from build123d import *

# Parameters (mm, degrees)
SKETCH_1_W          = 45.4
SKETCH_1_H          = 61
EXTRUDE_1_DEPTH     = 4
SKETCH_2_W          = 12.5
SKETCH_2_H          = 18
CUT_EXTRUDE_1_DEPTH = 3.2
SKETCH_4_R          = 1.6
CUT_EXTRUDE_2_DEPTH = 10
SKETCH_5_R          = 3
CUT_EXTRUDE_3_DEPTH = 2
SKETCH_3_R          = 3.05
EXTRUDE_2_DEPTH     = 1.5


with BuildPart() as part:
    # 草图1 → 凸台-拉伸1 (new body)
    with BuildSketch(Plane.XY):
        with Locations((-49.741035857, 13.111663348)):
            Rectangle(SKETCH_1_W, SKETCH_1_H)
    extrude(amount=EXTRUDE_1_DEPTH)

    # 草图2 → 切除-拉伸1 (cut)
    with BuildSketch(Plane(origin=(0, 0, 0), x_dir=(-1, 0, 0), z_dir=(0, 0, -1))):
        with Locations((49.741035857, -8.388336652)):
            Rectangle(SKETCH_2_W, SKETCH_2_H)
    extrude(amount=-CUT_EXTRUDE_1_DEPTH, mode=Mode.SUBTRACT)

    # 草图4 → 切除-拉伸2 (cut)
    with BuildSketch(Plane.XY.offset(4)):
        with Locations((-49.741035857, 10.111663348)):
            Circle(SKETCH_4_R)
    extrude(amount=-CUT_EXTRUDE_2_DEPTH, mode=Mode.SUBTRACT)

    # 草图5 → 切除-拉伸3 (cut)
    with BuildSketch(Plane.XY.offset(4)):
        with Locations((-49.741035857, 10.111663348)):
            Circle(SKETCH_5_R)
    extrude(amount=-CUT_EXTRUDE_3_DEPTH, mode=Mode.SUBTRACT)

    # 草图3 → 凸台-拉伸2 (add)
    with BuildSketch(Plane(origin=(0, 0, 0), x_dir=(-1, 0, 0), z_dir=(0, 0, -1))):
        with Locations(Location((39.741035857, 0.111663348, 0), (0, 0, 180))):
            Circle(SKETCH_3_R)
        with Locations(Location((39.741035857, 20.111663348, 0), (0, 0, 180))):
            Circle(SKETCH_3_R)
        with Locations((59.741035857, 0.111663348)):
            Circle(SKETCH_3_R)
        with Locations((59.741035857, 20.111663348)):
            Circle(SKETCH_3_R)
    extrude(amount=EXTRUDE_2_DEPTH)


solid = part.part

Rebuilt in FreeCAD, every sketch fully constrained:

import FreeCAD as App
import Part
import Sketcher

V = App.Vector


def add_polygon(sketch, points):
    """Adds a closed chain of lines whose ends are joined by coincident constraints."""
    first, n = sketch.GeometryCount, len(points)
    for a, b in zip(points, points[1:] + points[:1]):
        sketch.addGeometry(Part.LineSegment(App.Vector(*a, 0), App.Vector(*b, 0)), False)
    for i in range(n):
        sketch.addConstraint(Sketcher.Constraint("Coincident", first + i, 2, first + (i + 1) % n, 1))

doc = App.newDocument("Part")
body = doc.addObject("PartDesign::Body", "Body")

# Sketch on XY plane
sketch1 = body.newObject("Sketcher::SketchObject", "Sketch")
sketch1.AttachmentSupport = (doc.getObject("XY_Plane"), [""])
sketch1.MapMode = "FlatFace"
add_polygon(sketch1, [(-72, 44), (-72, -17), (-27, -17), (-27, 44)])  # lines 0-3
sketch1.addConstraint(Sketcher.Constraint("Vertical", 0))
sketch1.addConstraint(Sketcher.Constraint("Horizontal", 1))
sketch1.addConstraint(Sketcher.Constraint("Vertical", 2))
sketch1.addConstraint(Sketcher.Constraint("Horizontal", 3))
sketch1.addConstraint(Sketcher.Constraint("DistanceY", 0, 2, 0, 1, 61.0))
sketch1.addConstraint(Sketcher.Constraint("DistanceX", 1, 1, 1, 2, 45.4))
sketch1.addConstraint(Sketcher.Constraint("DistanceX", 0, 2, -1, 1, 72.441036))
sketch1.addConstraint(Sketcher.Constraint("DistanceY", 0, 2, -1, 1, 17.388337))
pad1 = body.newObject("PartDesign::Pad", "Pad")
pad1.Profile = sketch1
pad1.Length = 4

# Sketch on XY plane
sketch2 = body.newObject("Sketcher::SketchObject", "Sketch001")
sketch2.AttachmentSupport = (doc.getObject("XY_Plane"), [""])
sketch2.MapMode = "FlatFace"
add_polygon(sketch2, [(-43, 1), (-43, -17), (-56, -17), (-56, 1)])  # lines 0-3
sketch2.addConstraint(Sketcher.Constraint("Vertical", 0))
sketch2.addConstraint(Sketcher.Constraint("Horizontal", 1))
sketch2.addConstraint(Sketcher.Constraint("Vertical", 2))
sketch2.addConstraint(Sketcher.Constraint("Horizontal", 3))
sketch2.addConstraint(Sketcher.Constraint("DistanceY", 0, 2, 0, 1, 18.0))
sketch2.addConstraint(Sketcher.Constraint("DistanceX", 1, 2, 1, 1, 12.5))
sketch2.addConstraint(Sketcher.Constraint("DistanceX", 0, 2, -1, 1, 43.491036))
sketch2.addConstraint(Sketcher.Constraint("DistanceY", 0, 2, -1, 1, 17.388337))
pocket1 = body.newObject("PartDesign::Pocket", "Pocket")
pocket1.Profile = sketch2
pocket1.Length = 3.2
pocket1.Reversed = True

# Sketch on XY plane
sketch3 = body.newObject("Sketcher::SketchObject", "Sketch002")
sketch3.AttachmentSupport = (doc.getObject("XY_Plane"), [""])
sketch3.MapMode = "FlatFace"
sketch3.AttachmentOffset = App.Placement(V(0, 0, 4), App.Rotation())
sketch3.addGeometry(Part.Circle(V(-49.7, 10.1, 0), V(0, 0, 1), 1.6), False)
sketch3.addConstraint(Sketcher.Constraint("Diameter", 0, 3.2))
sketch3.addConstraint(Sketcher.Constraint("DistanceX", 0, 3, -1, 1, 49.741036))
sketch3.addConstraint(Sketcher.Constraint("DistanceY", -1, 1, 0, 3, 10.111663))
pocket2 = body.newObject("PartDesign::Pocket", "Pocket001")
pocket2.Profile = sketch3
pocket2.Length = 10

# Sketch on XY plane
sketch4 = body.newObject("Sketcher::SketchObject", "Sketch003")
sketch4.AttachmentSupport = (doc.getObject("XY_Plane"), [""])
sketch4.MapMode = "FlatFace"
sketch4.AttachmentOffset = App.Placement(V(0, 0, 4), App.Rotation())
sketch4.addGeometry(Part.Circle(V(-49.7, 10.1, 0), V(0, 0, 1), 3), False)
sketch4.addConstraint(Sketcher.Constraint("Diameter", 0, 6.0))
sketch4.addConstraint(Sketcher.Constraint("DistanceX", 0, 3, -1, 1, 49.741036))
sketch4.addConstraint(Sketcher.Constraint("DistanceY", -1, 1, 0, 3, 10.111663))
pocket3 = body.newObject("PartDesign::Pocket", "Pocket002")
pocket3.Profile = sketch4
pocket3.Length = 2

# Sketch on XY plane
sketch5 = body.newObject("Sketcher::SketchObject", "Sketch004")
sketch5.AttachmentSupport = (doc.getObject("XY_Plane"), [""])
sketch5.MapMode = "FlatFace"
sketch5.addGeometry(Part.Circle(V(-39.7, 0.1, 0), V(0, 0, 1), 3), False)
sketch5.addGeometry(Part.Circle(V(-39.7, 20.1, 0), V(0, 0, 1), 3), False)
sketch5.addGeometry(Part.Circle(V(-59.7, 0.1, 0), V(0, 0, 1), 3), False)
sketch5.addGeometry(Part.Circle(V(-59.7, 20.1, 0), V(0, 0, 1), 3), False)
sketch5.addConstraint(Sketcher.Constraint("Equal", 0, 1))
sketch5.addConstraint(Sketcher.Constraint("Equal", 1, 2))
sketch5.addConstraint(Sketcher.Constraint("Equal", 2, 3))
sketch5.addConstraint(Sketcher.Constraint("Horizontal", 0, 3, 2, 3))
sketch5.addConstraint(Sketcher.Constraint("Horizontal", 1, 3, 3, 3))
sketch5.addConstraint(Sketcher.Constraint("Vertical", 0, 3, 1, 3))
sketch5.addConstraint(Sketcher.Constraint("Vertical", 2, 3, 3, 3))
sketch5.addConstraint(Sketcher.Constraint("Diameter", 0, 6.1))
sketch5.addConstraint(Sketcher.Constraint("DistanceY", 0, 3, 1, 3, 20.0))
sketch5.addConstraint(Sketcher.Constraint("DistanceX", 2, 3, 0, 3, 20.0))
sketch5.addConstraint(Sketcher.Constraint("DistanceX", 0, 3, -1, 1, 39.741036))
sketch5.addConstraint(Sketcher.Constraint("DistanceY", -1, 1, 0, 3, 0.111663))
pad2 = body.newObject("PartDesign::Pad", "Pad001")
pad2.Profile = sketch5
pad2.Length = 1.5
pad2.Reversed = True

doc.recompute()
